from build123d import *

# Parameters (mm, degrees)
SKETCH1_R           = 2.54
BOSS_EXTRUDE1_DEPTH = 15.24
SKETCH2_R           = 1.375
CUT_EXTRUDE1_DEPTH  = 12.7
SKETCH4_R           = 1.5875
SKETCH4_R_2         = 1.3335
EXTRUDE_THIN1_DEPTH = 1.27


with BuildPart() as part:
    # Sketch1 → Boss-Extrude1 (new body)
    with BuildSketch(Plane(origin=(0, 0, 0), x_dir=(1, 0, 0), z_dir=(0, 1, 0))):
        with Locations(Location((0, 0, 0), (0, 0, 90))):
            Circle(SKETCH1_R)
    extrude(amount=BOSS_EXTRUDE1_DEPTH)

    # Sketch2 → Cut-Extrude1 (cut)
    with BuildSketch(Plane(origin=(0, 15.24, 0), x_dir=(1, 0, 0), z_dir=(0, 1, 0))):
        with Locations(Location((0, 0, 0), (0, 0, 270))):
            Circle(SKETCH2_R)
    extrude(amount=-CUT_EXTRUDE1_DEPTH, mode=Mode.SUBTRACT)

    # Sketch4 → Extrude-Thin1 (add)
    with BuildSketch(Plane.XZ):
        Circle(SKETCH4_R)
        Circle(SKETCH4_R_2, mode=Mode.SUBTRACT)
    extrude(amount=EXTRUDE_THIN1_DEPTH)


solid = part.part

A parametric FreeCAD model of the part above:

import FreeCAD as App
import Part
import Sketcher

V = App.Vector
Q = App.Units.Quantity

doc = App.newDocument("Part")
params = doc.addObject("Spreadsheet::Sheet", "Params")
for row, (alias, value) in enumerate([
    ("sketch1_diameter", "0.2 in"),
    ("pad1_length", "0.6 in"),
    ("pocket1_length", "0.5 in"),
    ("sketch3_diameter", "0.125 in"),
    ("sketch3_diameter2", "0.105 in"),
    ("pad2_length", "0.05 in"),
], start=1):
    params.set(f"A{row}", alias)
    params.set(f"B{row}", "=" + value)
    params.setAlias(f"B{row}", alias)

body = doc.addObject("PartDesign::Body", "Body")

# Sketch on XZ plane
sketch1 = body.newObject("Sketcher::SketchObject", "Sketch")
sketch1.AttachmentSupport = (doc.getObject("XZ_Plane"), [""])
sketch1.MapMode = "FlatFace"
sketch1.addGeometry(Part.Circle(V(0, 0, 0), V(0, 0, 1), 2.5), False)
sketch1.addConstraint([
    Sketcher.Constraint("Coincident", 0, 3, -1, 1),
    Sketcher.Constraint("Diameter", 0, Q("0.2 in")),
])
sketch1.setExpression("Constraints[1]", "Params.sketch1_diameter")
pad1 = body.newObject("PartDesign::Pad", "Pad")
pad1.Profile = sketch1
pad1.setExpression("Length", "Params.pad1_length")
pad1.Reversed = True

# Sketch on XZ plane
sketch2 = body.newObject("Sketcher::SketchObject", "Sketch001")
sketch2.AttachmentSupport = (doc.getObject("XZ_Plane"), [""])
sketch2.MapMode = "FlatFace"
sketch2.AttachmentOffset = App.Placement(V(0, 0, -0.6 * 25.4), App.Rotation())
sketch2.addGeometry(Part.Circle(V(0, 0, 0), V(0, 0, 1), 1.4), False)
sketch2.addConstraint([
    Sketcher.Constraint("Coincident", 0, 3, -1, 1),
    Sketcher.Constraint("Diameter", 0, 2.75),
])
pocket1 = body.newObject("PartDesign::Pocket", "Pocket")
pocket1.Profile = sketch2
pocket1.setExpression("Length", "Params.pocket1_length")
pocket1.Reversed = True

# Sketch on XZ plane
sketch3 = body.newObject("Sketcher::SketchObject", "Sketch002")
sketch3.AttachmentSupport = (doc.getObject("XZ_Plane"), [""])
sketch3.MapMode = "FlatFace"
sketch3.addGeometry([
    Part.Circle(V(0, 0, 0), V(0, 0, 1), 1.6),
    Part.Circle(V(0, 0, 0), V(0, 0, 1), 1.3),
], False)
sketch3.addConstraint([
    Sketcher.Constraint("Coincident", 0, 3, -1, 1),
    Sketcher.Constraint("Coincident", 1, 3, -1, 1),
    Sketcher.Constraint("Diameter", 0, Q("0.125 in")),
    Sketcher.Constraint("Diameter", 1, Q("0.105 in")),
])
sketch3.setExpression("Constraints[2]", "Params.sketch3_diameter")
sketch3.setExpression("Constraints[3]", "Params.sketch3_diameter2")
pad2 = body.newObject("PartDesign::Pad", "Pad001")
pad2.Profile = sketch3
pad2.setExpression("Length", "Params.pad2_length")

doc.recompute()
